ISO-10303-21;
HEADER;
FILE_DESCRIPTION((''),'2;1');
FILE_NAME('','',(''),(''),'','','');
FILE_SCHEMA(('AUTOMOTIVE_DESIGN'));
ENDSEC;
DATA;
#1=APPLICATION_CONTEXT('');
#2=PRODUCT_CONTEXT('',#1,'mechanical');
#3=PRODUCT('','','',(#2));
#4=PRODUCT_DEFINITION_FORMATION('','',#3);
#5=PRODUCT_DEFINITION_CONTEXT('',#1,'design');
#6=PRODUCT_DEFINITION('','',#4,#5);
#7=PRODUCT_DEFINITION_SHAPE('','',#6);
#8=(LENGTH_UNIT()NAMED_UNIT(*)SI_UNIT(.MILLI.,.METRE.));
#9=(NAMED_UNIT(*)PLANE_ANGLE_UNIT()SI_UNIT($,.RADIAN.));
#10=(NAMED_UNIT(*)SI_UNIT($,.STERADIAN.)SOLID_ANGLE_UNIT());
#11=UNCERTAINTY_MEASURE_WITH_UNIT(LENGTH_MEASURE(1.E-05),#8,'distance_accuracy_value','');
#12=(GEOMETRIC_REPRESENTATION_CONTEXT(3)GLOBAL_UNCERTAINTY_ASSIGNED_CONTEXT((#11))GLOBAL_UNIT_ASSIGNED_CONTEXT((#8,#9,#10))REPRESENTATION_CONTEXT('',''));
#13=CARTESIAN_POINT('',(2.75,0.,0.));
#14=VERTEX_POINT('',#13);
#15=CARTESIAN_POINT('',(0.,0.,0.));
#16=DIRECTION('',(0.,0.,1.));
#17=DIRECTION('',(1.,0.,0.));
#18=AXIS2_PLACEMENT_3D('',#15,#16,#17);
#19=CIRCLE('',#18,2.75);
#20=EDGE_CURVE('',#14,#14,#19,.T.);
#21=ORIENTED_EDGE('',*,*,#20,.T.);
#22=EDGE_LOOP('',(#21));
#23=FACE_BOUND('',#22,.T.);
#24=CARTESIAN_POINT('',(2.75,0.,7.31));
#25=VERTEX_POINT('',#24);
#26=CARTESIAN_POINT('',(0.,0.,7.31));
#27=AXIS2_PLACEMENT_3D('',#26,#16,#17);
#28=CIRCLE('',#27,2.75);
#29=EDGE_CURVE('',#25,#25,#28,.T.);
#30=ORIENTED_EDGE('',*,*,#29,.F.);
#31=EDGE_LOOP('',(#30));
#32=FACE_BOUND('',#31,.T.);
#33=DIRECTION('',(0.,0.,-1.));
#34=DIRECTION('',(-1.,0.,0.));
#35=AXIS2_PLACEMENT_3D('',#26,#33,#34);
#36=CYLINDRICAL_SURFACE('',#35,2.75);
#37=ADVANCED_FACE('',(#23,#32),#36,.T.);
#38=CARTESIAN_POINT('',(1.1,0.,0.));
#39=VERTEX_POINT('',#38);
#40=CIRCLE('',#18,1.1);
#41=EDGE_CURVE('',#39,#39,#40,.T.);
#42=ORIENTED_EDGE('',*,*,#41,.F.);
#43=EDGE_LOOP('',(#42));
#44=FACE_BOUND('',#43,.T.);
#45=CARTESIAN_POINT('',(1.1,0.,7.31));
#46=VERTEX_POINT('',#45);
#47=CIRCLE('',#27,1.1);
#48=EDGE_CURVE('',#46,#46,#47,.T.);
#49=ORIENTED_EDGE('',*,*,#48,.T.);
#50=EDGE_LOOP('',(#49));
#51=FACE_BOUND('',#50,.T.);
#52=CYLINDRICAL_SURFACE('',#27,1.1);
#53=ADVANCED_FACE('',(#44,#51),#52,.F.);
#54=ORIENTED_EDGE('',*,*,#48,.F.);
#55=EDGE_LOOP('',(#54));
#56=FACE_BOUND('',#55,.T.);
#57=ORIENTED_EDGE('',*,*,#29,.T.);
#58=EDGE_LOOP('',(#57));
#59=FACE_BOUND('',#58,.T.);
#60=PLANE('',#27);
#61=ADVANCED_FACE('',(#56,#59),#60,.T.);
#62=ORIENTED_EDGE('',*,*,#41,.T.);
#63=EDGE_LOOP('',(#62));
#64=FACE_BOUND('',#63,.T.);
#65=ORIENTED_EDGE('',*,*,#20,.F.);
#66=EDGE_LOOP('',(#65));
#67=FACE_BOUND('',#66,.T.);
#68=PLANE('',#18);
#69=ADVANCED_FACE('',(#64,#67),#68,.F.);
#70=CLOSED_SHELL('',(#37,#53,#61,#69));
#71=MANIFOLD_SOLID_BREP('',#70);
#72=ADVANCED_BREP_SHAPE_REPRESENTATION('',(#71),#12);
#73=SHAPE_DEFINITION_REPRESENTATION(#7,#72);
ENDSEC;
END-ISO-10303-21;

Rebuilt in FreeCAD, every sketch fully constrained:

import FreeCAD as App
import Part
import Sketcher
Q = App.Units.Quantity

doc = App.newDocument("Part")
body = doc.addObject("PartDesign::Body", "Body")

# Sketch on XY plane
sketch1 = body.newObject("Sketcher::SketchObject", "Sketch")
sketch1.AttachmentSupport = (doc.getObject("XY_Plane"), [""])
sketch1.MapMode = "FlatFace"
sketch1.addGeometry(Part.Circle(App.Vector(0, 0, 0), App.Vector(0, 0, 1), 2.8), False)
sketch1.addConstraint([
    Sketcher.Constraint("Coincident", 0, 3, -1, 1),
    Sketcher.Constraint("Diameter", 0, Q("5.5 mm")),
])
pad1 = body.newObject("PartDesign::Pad", "Pad")
pad1.Profile = sketch1
pad1.Length = 7.31

# Sketch on XY plane
sketch2 = body.newObject("Sketcher::SketchObject", "Sketch001")
sketch2.AttachmentSupport = (doc.getObject("XY_Plane"), [""])
sketch2.MapMode = "FlatFace"
sketch2.AttachmentOffset = App.Placement(App.Vector(0, 0, 7.31), App.Rotation())
sketch2.addGeometry(Part.Circle(App.Vector(0, 0, 0), App.Vector(0, 0, 1), 1.1), False)
sketch2.addConstraint([
    Sketcher.Constraint("Coincident", 0, 3, -1, 1),
    Sketcher.Constraint("Diameter", 0, Q("2.2 mm")),
])
doc.recompute()
hole = body.newObject("PartDesign::Hole", "Hole")
hole.Profile = sketch2
hole.ThreadType = "None"
hole.Diameter = 2.2
hole.DepthType = "ThroughAll"

doc.recompute()
